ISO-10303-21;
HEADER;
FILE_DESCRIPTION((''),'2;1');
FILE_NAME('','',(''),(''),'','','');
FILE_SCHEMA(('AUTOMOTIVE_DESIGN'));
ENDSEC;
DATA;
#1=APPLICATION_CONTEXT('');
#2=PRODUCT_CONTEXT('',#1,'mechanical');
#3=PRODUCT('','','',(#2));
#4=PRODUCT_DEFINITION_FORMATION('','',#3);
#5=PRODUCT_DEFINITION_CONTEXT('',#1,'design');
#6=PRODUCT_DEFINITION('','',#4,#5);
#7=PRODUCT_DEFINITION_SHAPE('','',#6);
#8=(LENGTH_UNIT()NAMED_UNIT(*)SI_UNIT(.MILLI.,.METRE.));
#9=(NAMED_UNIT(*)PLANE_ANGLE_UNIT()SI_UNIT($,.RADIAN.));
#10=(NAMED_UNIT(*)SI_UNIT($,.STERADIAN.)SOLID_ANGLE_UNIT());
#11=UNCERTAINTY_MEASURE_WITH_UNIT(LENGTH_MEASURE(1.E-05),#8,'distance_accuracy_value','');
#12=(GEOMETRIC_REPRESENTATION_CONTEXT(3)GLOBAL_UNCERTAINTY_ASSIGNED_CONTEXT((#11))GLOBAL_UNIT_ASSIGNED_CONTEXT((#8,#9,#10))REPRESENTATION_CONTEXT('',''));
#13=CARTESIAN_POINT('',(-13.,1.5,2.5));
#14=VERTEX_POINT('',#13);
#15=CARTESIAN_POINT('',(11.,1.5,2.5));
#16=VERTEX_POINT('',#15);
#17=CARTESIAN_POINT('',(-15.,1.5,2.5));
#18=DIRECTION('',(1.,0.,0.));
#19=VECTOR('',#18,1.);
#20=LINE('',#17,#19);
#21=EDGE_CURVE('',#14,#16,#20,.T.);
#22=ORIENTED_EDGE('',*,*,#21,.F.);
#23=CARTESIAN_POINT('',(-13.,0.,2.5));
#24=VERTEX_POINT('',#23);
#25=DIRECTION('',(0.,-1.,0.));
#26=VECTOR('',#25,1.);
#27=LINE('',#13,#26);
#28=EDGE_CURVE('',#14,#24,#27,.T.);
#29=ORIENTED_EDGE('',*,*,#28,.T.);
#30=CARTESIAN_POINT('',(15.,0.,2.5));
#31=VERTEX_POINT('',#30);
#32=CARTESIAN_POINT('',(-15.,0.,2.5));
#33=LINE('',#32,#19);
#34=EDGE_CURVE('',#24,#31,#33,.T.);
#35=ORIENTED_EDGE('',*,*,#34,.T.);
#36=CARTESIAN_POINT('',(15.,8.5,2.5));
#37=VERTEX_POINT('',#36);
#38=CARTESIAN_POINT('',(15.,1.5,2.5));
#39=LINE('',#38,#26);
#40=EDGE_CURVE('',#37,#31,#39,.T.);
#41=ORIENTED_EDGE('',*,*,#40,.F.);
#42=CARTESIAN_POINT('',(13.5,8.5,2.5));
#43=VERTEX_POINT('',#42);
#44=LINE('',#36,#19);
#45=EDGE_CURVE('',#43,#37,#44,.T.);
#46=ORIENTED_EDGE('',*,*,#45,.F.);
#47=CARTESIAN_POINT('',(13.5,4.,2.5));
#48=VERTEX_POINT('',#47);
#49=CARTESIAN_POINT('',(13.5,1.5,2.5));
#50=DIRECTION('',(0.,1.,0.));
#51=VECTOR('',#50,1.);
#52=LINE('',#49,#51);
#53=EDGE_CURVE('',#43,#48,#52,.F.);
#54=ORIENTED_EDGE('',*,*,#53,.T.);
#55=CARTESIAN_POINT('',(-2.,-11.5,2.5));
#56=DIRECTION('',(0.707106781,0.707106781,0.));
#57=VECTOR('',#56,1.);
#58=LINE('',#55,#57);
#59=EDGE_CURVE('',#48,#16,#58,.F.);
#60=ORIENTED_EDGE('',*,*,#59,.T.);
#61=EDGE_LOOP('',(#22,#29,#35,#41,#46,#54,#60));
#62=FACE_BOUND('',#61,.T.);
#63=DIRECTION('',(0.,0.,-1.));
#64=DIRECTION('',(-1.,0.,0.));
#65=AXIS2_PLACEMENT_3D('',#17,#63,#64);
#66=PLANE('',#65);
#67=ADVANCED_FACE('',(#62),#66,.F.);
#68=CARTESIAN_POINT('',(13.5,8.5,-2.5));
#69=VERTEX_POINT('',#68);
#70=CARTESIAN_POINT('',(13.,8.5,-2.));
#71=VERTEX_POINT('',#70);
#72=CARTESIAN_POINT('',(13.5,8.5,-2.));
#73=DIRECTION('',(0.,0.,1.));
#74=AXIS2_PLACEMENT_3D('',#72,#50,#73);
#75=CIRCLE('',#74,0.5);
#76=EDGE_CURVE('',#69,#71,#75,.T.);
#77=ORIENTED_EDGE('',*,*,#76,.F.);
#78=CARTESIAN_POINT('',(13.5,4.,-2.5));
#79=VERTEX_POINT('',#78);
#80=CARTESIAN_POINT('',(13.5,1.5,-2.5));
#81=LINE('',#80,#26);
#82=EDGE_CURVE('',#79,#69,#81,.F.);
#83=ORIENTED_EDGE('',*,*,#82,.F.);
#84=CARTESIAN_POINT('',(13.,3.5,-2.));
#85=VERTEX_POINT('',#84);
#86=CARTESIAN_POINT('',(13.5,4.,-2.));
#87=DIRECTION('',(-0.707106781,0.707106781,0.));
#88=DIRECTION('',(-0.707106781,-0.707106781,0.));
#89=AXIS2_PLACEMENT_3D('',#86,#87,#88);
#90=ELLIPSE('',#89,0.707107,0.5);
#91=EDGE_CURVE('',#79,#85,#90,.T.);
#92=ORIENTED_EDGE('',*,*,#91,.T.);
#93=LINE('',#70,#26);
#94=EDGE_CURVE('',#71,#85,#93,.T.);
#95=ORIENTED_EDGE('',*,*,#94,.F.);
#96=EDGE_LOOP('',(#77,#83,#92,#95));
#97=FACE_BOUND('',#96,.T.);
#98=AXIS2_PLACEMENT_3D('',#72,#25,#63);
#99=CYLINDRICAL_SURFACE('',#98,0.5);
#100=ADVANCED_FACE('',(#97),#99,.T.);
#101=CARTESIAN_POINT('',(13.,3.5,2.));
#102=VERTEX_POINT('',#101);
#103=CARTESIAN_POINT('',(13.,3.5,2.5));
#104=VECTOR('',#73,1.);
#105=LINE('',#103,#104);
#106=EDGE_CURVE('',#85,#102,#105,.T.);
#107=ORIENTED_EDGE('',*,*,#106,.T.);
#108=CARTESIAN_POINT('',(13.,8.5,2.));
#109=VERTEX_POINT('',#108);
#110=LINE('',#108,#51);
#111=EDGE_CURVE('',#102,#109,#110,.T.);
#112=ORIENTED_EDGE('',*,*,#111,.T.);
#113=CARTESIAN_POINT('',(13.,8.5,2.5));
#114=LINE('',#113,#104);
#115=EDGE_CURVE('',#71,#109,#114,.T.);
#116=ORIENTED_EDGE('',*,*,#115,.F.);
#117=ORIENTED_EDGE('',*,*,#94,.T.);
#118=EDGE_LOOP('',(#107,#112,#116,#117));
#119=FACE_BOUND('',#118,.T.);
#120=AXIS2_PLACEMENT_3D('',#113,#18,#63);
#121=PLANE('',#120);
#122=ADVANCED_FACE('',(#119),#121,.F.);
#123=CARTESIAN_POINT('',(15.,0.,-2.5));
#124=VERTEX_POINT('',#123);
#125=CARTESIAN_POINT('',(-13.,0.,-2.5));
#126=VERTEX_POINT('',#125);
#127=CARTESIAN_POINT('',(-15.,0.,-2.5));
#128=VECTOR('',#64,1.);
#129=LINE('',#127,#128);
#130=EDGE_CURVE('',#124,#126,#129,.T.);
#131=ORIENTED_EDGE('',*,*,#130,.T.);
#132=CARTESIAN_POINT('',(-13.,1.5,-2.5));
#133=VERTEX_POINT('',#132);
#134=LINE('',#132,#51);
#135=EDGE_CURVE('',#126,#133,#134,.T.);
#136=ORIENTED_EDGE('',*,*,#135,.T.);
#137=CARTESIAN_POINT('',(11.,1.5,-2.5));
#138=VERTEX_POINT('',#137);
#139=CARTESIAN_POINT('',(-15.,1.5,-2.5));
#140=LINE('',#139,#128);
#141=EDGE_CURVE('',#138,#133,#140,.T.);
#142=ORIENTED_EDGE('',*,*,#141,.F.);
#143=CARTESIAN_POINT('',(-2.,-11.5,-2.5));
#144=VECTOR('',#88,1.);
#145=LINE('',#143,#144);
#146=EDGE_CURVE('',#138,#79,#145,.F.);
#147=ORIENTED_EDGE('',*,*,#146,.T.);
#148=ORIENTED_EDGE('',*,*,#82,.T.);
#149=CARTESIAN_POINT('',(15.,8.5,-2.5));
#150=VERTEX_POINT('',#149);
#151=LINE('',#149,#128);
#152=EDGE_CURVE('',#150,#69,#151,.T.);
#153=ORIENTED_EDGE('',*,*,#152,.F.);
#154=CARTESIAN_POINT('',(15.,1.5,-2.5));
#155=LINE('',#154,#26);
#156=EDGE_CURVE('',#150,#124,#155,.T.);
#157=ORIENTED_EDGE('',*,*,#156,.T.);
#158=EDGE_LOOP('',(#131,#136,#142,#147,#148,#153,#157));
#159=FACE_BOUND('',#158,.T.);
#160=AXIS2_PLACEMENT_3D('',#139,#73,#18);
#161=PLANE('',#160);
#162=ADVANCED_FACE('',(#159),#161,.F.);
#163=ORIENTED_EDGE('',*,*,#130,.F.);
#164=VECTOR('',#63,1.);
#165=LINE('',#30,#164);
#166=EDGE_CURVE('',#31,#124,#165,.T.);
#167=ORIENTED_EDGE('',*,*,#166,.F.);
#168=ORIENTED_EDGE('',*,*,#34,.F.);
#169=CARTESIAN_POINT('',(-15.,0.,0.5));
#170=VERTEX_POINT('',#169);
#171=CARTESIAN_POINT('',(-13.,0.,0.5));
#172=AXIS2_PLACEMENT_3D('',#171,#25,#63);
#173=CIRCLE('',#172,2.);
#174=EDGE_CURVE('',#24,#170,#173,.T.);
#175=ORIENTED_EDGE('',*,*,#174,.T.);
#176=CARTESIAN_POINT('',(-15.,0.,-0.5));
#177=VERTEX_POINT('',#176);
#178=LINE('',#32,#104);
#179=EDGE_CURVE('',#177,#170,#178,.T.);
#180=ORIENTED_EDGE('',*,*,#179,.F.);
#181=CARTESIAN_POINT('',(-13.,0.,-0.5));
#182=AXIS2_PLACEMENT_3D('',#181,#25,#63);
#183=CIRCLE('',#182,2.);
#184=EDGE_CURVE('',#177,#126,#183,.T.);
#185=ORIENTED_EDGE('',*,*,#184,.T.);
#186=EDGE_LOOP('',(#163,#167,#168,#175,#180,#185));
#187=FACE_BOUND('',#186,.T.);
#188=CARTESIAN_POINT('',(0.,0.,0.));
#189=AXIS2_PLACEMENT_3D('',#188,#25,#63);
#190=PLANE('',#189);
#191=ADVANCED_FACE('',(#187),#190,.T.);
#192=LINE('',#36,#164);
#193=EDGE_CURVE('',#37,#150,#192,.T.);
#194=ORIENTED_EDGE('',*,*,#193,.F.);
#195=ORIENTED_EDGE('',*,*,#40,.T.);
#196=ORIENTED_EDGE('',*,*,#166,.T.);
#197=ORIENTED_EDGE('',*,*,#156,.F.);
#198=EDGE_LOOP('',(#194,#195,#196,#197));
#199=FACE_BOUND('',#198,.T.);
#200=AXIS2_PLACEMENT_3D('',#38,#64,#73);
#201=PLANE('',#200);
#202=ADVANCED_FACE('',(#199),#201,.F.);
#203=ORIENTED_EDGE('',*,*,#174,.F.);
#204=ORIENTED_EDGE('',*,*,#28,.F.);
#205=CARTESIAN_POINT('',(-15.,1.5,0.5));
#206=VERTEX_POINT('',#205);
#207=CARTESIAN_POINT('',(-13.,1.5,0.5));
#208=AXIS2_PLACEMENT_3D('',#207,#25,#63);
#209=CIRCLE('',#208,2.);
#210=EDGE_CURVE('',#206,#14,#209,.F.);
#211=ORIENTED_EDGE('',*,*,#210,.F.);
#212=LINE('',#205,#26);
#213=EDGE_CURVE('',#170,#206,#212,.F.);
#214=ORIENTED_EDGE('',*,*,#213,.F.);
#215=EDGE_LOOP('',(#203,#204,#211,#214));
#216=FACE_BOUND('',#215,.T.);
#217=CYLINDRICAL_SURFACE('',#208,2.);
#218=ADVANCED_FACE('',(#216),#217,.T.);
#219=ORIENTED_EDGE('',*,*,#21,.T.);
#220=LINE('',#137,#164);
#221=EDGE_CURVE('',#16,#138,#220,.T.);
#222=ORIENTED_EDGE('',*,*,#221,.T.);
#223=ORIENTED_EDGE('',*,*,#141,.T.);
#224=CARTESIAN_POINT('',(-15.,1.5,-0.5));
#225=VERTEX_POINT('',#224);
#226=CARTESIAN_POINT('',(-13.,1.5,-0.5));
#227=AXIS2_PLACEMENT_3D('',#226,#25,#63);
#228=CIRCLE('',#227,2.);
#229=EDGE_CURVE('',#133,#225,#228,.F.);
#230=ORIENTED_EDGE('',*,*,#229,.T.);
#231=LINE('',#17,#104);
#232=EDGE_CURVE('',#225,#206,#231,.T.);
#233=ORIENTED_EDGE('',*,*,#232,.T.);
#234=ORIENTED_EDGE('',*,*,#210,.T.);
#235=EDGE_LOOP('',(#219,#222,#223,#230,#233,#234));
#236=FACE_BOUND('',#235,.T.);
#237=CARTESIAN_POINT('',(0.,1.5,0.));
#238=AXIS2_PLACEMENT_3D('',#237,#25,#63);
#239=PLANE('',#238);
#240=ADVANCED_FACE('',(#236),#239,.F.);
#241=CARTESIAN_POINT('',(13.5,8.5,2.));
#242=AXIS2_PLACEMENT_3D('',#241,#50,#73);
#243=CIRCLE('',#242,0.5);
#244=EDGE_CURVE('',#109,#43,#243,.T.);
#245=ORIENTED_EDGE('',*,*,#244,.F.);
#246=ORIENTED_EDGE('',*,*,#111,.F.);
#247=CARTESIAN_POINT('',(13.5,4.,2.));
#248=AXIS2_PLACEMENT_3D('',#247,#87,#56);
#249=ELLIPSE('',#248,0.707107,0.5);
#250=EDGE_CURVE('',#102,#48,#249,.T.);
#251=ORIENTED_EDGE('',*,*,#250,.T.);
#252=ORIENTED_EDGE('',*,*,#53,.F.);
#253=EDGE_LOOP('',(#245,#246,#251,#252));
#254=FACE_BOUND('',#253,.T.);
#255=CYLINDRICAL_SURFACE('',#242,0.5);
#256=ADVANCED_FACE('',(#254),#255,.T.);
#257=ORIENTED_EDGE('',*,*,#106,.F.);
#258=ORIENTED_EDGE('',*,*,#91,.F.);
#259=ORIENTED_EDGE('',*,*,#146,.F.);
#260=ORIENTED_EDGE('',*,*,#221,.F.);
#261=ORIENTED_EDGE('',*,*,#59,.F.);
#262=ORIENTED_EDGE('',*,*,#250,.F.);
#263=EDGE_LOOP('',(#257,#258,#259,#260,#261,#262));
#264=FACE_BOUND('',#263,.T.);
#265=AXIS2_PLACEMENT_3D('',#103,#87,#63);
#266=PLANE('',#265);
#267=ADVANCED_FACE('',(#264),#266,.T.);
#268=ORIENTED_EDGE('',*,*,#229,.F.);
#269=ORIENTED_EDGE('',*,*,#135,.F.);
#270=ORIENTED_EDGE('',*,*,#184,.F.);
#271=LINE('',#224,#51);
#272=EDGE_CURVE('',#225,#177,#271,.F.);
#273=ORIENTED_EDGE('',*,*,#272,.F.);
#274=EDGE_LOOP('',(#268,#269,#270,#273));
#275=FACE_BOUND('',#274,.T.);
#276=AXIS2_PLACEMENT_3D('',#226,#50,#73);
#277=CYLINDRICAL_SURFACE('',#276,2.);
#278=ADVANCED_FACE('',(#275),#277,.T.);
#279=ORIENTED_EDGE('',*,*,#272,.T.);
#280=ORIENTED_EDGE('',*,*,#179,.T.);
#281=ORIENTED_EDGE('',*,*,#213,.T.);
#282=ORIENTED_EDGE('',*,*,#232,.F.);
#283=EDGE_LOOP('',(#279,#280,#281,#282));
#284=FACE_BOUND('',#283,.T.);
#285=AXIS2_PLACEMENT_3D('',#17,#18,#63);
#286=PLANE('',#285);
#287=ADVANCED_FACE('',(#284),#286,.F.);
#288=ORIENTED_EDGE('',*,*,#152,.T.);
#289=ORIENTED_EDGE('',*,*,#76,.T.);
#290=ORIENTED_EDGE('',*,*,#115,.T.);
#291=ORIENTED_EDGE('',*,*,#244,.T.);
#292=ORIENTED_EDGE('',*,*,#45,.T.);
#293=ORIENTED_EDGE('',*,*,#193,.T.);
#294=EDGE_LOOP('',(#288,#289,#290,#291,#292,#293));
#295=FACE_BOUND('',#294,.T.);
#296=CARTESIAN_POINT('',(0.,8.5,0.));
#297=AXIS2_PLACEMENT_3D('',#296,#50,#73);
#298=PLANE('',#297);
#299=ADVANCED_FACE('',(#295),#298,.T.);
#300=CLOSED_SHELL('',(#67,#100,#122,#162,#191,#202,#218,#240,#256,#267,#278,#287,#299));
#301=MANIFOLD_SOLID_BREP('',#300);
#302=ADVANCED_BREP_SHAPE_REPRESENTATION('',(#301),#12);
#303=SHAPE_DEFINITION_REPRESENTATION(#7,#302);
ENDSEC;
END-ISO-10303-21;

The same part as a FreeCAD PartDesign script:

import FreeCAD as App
import Part
import Sketcher

V = App.Vector


def edges_at(feature, points):
    """Names of the edges that pass closest to the given points."""
    edges = feature.Shape.Edges
    near = lambda p: min(range(len(edges)), key=lambda i: edges[i].distToShape(Part.Vertex(*p))[0])
    return sorted({f"Edge{near(p) + 1}" for p in points})


def add_polygon(sketch, points):
    """Adds a closed chain of lines whose ends are joined by coincident constraints."""
    first, n = sketch.GeometryCount, len(points)
    for a, b in zip(points, points[1:] + points[:1]):
        sketch.addGeometry(Part.LineSegment(App.Vector(*a, 0), App.Vector(*b, 0)), False)
    for i in range(n):
        sketch.addConstraint(Sketcher.Constraint("Coincident", first + i, 2, first + (i + 1) % n, 1))

doc = App.newDocument("Part")
body = doc.addObject("PartDesign::Body", "Body")

# Sketch on XZ plane
sketch1 = body.newObject("Sketcher::SketchObject", "Sketch")
sketch1.AttachmentSupport = (doc.getObject("XZ_Plane"), [""])
sketch1.MapMode = "FlatFace"
add_polygon(sketch1, [(-15, -2), (-15, 2), (15, 2), (15, -2)])  # lines 0-3
sketch1.addConstraint(Sketcher.Constraint("Vertical", 0))
sketch1.addConstraint(Sketcher.Constraint("Horizontal", 1))
sketch1.addConstraint(Sketcher.Constraint("Vertical", 2))
sketch1.addConstraint(Sketcher.Constraint("Horizontal", 3))
sketch1.addConstraint(Sketcher.Constraint("Symmetric", 0, 2, 2, 2, -1, 1))
sketch1.addConstraint(Sketcher.Constraint("DistanceX", 1, 1, 1, 2, 30.0))
sketch1.addConstraint(Sketcher.Constraint("DistanceY", 0, 1, 0, 2, 5.0))
pad1 = body.newObject("PartDesign::Pad", "Pad")
pad1.Profile = sketch1
pad1.Length = 1.5
pad1.Reversed = True

# Sketch on XZ plane
sketch2 = body.newObject("Sketcher::SketchObject", "Sketch001")
sketch2.AttachmentSupport = (doc.getObject("XZ_Plane"), [""])
sketch2.MapMode = "FlatFace"
sketch2.AttachmentOffset = App.Placement(V(0, 0, -1.5), App.Rotation())
add_polygon(sketch2, [(13, -2.5), (13, 2.5), (15, 2.5), (15, -2.5)])  # lines 0-3
sketch2.addConstraint(Sketcher.Constraint("Vertical", 0))
sketch2.addConstraint(Sketcher.Constraint("Horizontal", 1))
sketch2.addConstraint(Sketcher.Constraint("Vertical", 2))
sketch2.addConstraint(Sketcher.Constraint("Horizontal", 3))
sketch2.addConstraint(Sketcher.Constraint("DistanceX", 1, 1, 1, 2, 2.0))
sketch2.addConstraint(Sketcher.Constraint("DistanceY", 0, 1, 0, 2, 5.0))
sketch2.addConstraint(Sketcher.Constraint("DistanceX", -1, 1, 0, 2, 13.0))
sketch2.addConstraint(Sketcher.Constraint("DistanceY", -1, 1, 0, 2, 2.5))
pad2 = body.newObject("PartDesign::Pad", "Pad001")
pad2.Profile = sketch2
pad2.Length = 7
pad2.Reversed = True
doc.recompute()

fillet = body.newObject("PartDesign::Fillet", "Fillet")
fillet.Base = (pad2, edges_at(pad2, [(-15, 0.75, 2.5)]))
fillet.Radius = 2
doc.recompute()

fillet2 = body.newObject("PartDesign::Fillet", "Fillet001")
fillet2.Base = (fillet, edges_at(fillet, [(-15, 0.75, -2.5)]))
fillet2.Radius = 2
doc.recompute()

chamfer = body.newObject("PartDesign::Chamfer", "Chamfer")
chamfer.Base = (fillet2, edges_at(fillet2, [(13, 1.5, 0)]))
chamfer.Size = 2
doc.recompute()

fillet3 = body.newObject("PartDesign::Fillet", "Fillet002")
fillet3.Base = (chamfer, edges_at(chamfer, [(13, 6, 2.5)]))
fillet3.Radius = 0.5
doc.recompute()

fillet4 = body.newObject("PartDesign::Fillet", "Fillet003")
fillet4.Base = (fillet3, edges_at(fillet3, [(13, 6, -2.5)]))
fillet4.Radius = 0.5

doc.recompute()
